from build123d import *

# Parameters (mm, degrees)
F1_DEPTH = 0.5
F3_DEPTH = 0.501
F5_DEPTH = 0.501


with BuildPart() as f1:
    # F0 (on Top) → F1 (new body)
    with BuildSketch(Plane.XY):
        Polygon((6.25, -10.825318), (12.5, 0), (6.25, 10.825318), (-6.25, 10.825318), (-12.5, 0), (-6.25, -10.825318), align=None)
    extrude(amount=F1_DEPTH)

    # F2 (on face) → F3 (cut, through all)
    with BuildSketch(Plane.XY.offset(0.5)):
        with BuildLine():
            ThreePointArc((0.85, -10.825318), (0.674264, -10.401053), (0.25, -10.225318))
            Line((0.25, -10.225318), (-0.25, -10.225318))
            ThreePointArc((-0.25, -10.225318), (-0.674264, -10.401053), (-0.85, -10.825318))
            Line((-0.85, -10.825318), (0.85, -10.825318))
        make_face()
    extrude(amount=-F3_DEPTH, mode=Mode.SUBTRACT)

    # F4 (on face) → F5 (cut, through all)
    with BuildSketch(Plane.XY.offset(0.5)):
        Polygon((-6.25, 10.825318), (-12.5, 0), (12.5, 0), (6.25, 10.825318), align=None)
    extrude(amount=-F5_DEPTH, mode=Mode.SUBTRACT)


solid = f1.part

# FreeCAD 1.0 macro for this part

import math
import FreeCAD as App
import Part
import Sketcher
Q = App.Units.Quantity

doc = App.newDocument("Part")
body = doc.addObject("PartDesign::Body", "Body")

sketch1 = body.newObject("Sketcher::SketchObject", "Sketch")
sketch1.AttachmentSupport = (doc.getObject("XY_Plane"), [""])
sketch1.MapMode = "FlatFace"
sketch1.addGeometry([
    Part.LineSegment(App.Vector(6, -11, 0), App.Vector(12, 0, 0)),
    Part.LineSegment(App.Vector(12, 0, 0), App.Vector(6, 11, 0)),
    Part.LineSegment(App.Vector(6, 11, 0), App.Vector(-6, 11, 0)),
    Part.LineSegment(App.Vector(-6, 11, 0), App.Vector(-12, 0, 0)),
    Part.LineSegment(App.Vector(-12, 0, 0), App.Vector(-6, -11, 0)),
    Part.LineSegment(App.Vector(-6, -11, 0), App.Vector(6, -11, 0)),
], False)
sketch1.addConstraint([
    Sketcher.Constraint("Coincident", 0, 2, 1, 1),
    Sketcher.Constraint("Coincident", 1, 2, 2, 1),
    Sketcher.Constraint("Coincident", 2, 2, 3, 1),
    Sketcher.Constraint("Coincident", 3, 2, 4, 1),
    Sketcher.Constraint("Coincident", 4, 2, 5, 1),
    Sketcher.Constraint("Coincident", 5, 2, 0, 1),
    Sketcher.Constraint("Horizontal", 2),
    Sketcher.Constraint("Horizontal", 5),
    Sketcher.Constraint("Symmetric", 0, 2, 3, 2, -1, 1),
    Sketcher.Constraint("Symmetric", 1, 2, 4, 2, -1, 1),
    Sketcher.Constraint("PointOnObject", 0, 2, -1),
    Sketcher.Constraint("Parallel", 0, 3),
    Sketcher.Constraint("Vertical", 2, 2, 4, 2),
    Sketcher.Constraint("Angle", 0, Q("60.000001 deg")),
    Sketcher.Constraint("DistanceX", 2, 2, 2, 1, Q("12.5 mm")),
    Sketcher.Constraint("DistanceX", 3, 2, 0, 2, Q("25 mm")),
])
pad1 = body.newObject("PartDesign::Pad", "Pad")
pad1.Profile = sketch1
pad1.Length = 0.5

sketch2 = body.newObject("Sketcher::SketchObject", "Sketch001")
sketch2.AttachmentSupport = (doc.getObject("XY_Plane"), [""])
sketch2.MapMode = "FlatFace"
sketch2.AttachmentOffset = App.Placement(App.Vector(0, 0, 0.5), App.Rotation())
sketch2.addGeometry([
    Part.ArcOfCircle(Part.Circle(App.Vector(0.3, -10.8, 0), App.Vector(0, 0, 1), 0.6), math.radians(0), math.radians(90)),
    Part.LineSegment(App.Vector(0.2, -10.2, 0), App.Vector(-0.2, -10.2, 0)),
    Part.ArcOfCircle(Part.Circle(App.Vector(-0.3, -10.8, 0), App.Vector(0, 0, 1), 0.6), math.radians(90), math.radians(180)),
    Part.LineSegment(App.Vector(-0.8, -10.8, 0), App.Vector(0.8, -10.8, 0)),
], False)
sketch2.addConstraint([
    Sketcher.Constraint("Coincident", 0, 2, 1, 1),
    Sketcher.Constraint("Coincident", 1, 2, 2, 1),
    Sketcher.Constraint("Coincident", 2, 2, 3, 1),
    Sketcher.Constraint("Coincident", 3, 2, 0, 1),
    Sketcher.Constraint("Horizontal", 1),
    Sketcher.Constraint("Horizontal", 3),
    Sketcher.Constraint("Equal", 0, 2),
    Sketcher.Constraint("Horizontal", 0, 3, 2, 2),
    Sketcher.Constraint("Vertical", 2, 3, 1, 2),
    Sketcher.Constraint("Radius", 0, Q("0.599999 mm")),
    Sketcher.Constraint("DistanceX", 1, 2, 1, 1, Q("0.5 mm")),
    Sketcher.Constraint("DistanceX", 3, 1, 3, 2, Q("1.7 mm")),
    Sketcher.Constraint("DistanceX", -1, 1, 0, 3, Q("0.250001 mm")),
    Sketcher.Constraint("DistanceY", 0, 2, -1, 1, Q("10.225318 mm")),
])
pocket1 = body.newObject("PartDesign::Pocket", "Pocket")
pocket1.Profile = sketch2
pocket1.Type = "ThroughAll"

sketch3 = body.newObject("Sketcher::SketchObject", "Sketch002")
sketch3.AttachmentSupport = (doc.getObject("XY_Plane"), [""])
sketch3.MapMode = "FlatFace"
sketch3.AttachmentOffset = App.Placement(App.Vector(0, 0, 0.5), App.Rotation())
sketch3.addGeometry([
    Part.LineSegment(App.Vector(-6, 11, 0), App.Vector(-12, 0, 0)),
    Part.LineSegment(App.Vector(-12, 0, 0), App.Vector(12, 0, 0)),
    Part.LineSegment(App.Vector(12, 0, 0), App.Vector(6, 11, 0)),
    Part.LineSegment(App.Vector(6, 11, 0), App.Vector(-6, 11, 0)),
], False)
sketch3.addConstraint([
    Sketcher.Constraint("Coincident", 0, 2, 1, 1),
    Sketcher.Constraint("Coincident", 1, 2, 2, 1),
    Sketcher.Constraint("Coincident", 2, 2, 3, 1),
    Sketcher.Constraint("Coincident", 3, 2, 0, 1),
    Sketcher.Constraint("Horizontal", 1),
    Sketcher.Constraint("Horizontal", 3),
    Sketcher.Constraint("Symmetric", 0, 2, 1, 2, -1, 1),
    Sketcher.Constraint("Equal", 0, 2),
    Sketcher.Constraint("DistanceX", 1, 1, 1, 2, Q("25 mm")),
    Sketcher.Constraint("Angle", 0, Q("-119.999999 deg")),
    Sketcher.Constraint("DistanceX", 3, 2, 3, 1, Q("12.5 mm")),
])
pocket2 = body.newObject("PartDesign::Pocket", "Pocket001")
pocket2.Profile = sketch3
pocket2.Type = "ThroughAll"

doc.recompute()
